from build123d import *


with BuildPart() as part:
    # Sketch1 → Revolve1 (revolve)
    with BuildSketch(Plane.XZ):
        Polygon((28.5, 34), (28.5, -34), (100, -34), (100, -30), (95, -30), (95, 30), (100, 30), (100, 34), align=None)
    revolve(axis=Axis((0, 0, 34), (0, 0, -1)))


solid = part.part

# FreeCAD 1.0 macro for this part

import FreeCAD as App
import Part
import Sketcher
Q = App.Units.Quantity


def add_polygon(sketch, points):
    """Adds a closed chain of lines whose ends are joined by coincident constraints."""
    first, n = sketch.GeometryCount, len(points)
    for a, b in zip(points, points[1:] + points[:1]):
        sketch.addGeometry(Part.LineSegment(App.Vector(*a, 0), App.Vector(*b, 0)), False)
    for i in range(n):
        sketch.addConstraint(Sketcher.Constraint("Coincident", first + i, 2, first + (i + 1) % n, 1))

doc = App.newDocument("Part")
body = doc.addObject("PartDesign::Body", "Body")

# Sketch on XZ plane
sketch1 = body.newObject("Sketcher::SketchObject", "Sketch")
sketch1.AttachmentSupport = (doc.getObject("XZ_Plane"), [""])
sketch1.MapMode = "FlatFace"
add_polygon(sketch1, [(28.5, 34), (28.5, -34), (100, -34), (100, -30), (95, -30), (95, 30), (100, 30), (100, 34)])  # lines 0-7
sketch1.addConstraint([
    Sketcher.Constraint("Vertical", 0),
    Sketcher.Constraint("Horizontal", 1),
    Sketcher.Constraint("Vertical", 2),
    Sketcher.Constraint("Horizontal", 3),
    Sketcher.Constraint("Vertical", 4),
    Sketcher.Constraint("Horizontal", 5),
    Sketcher.Constraint("Vertical", 6),
    Sketcher.Constraint("Horizontal", 7),
    Sketcher.Constraint("Symmetric", 2, 2, 5, 2, -1),
    Sketcher.Constraint("Equal", 2, 6),
    Sketcher.Constraint("DistanceX", 3, 2, 3, 1, Q("5 mm")),
    Sketcher.Constraint("DistanceY", 0, 2, 0, 1, Q("68 mm")),
    Sketcher.Constraint("DistanceY", 2, 1, 2, 2, Q("4 mm")),
    Sketcher.Constraint("DistanceX", 1, 1, 1, 2, Q("71.5 mm")),
    Sketcher.Constraint("DistanceX", -1, 1, 1, 2, Q("100 mm")),
])
revolution = body.newObject("PartDesign::Revolution", "Revolution")
revolution.Profile = sketch1
revolution.ReferenceAxis = (sketch1, ["V_Axis"])
revolution.Angle = 360

doc.recompute()
